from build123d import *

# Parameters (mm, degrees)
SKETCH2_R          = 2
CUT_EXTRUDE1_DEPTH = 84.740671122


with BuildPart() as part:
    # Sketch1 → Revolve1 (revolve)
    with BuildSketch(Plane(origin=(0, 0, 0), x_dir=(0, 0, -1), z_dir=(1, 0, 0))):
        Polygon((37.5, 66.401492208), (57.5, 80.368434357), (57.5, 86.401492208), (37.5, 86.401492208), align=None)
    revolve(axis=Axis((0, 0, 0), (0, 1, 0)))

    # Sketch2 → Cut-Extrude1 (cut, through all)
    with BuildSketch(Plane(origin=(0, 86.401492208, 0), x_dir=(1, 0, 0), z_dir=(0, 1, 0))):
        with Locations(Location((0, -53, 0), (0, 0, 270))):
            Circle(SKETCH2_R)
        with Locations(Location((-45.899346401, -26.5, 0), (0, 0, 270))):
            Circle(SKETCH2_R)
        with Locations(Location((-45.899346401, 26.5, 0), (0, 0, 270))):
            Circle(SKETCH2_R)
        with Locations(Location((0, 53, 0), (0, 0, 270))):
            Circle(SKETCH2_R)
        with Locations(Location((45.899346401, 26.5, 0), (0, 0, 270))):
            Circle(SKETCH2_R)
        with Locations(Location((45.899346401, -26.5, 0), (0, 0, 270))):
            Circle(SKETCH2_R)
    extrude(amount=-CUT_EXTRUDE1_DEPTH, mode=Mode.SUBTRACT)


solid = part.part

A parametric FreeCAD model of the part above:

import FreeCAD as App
import Part
import Sketcher
Q = App.Units.Quantity


def add_polygon(sketch, points):
    """Adds a closed chain of lines whose ends are joined by coincident constraints."""
    first, n = sketch.GeometryCount, len(points)
    for a, b in zip(points, points[1:] + points[:1]):
        sketch.addGeometry(Part.LineSegment(App.Vector(*a, 0), App.Vector(*b, 0)), False)
    for i in range(n):
        sketch.addConstraint(Sketcher.Constraint("Coincident", first + i, 2, first + (i + 1) % n, 1))

doc = App.newDocument("Part")
params = doc.addObject("Spreadsheet::Sheet", "Params")
for row, (alias, value) in enumerate([
    ("sketch1_width", "20 mm"),
    ("revolution_angle", "360 deg"),
    ("sketch2_diameter", "4 mm"),
], start=1):
    params.set(f"A{row}", alias)
    params.set(f"B{row}", "=" + value)
    params.setAlias(f"B{row}", alias)

body = doc.addObject("PartDesign::Body", "Body")

sketch1 = body.newObject("Sketcher::SketchObject", "Sketch")
sketch1.AttachmentSupport = (doc.getObject("YZ_Plane"), [""])
sketch1.MapMode = "FlatFace"
add_polygon(sketch1, [(66, -38), (80, -58), (86, -58), (86, -38)])
sketch1.addConstraint([
    Sketcher.Constraint("Horizontal", 1),
    Sketcher.Constraint("Vertical", 2),
    Sketcher.Constraint("Horizontal", 3),
    Sketcher.Constraint("Equal", 3, 2),
    Sketcher.Constraint("DistanceX", 3, 2, 3, 1, Q("20 mm")),
    Sketcher.Constraint("DistanceY", 0, 2, -1, 1, Q("57.5 mm")),
    Sketcher.Constraint("Distance", 0, Q("24.394169 mm")),
    Sketcher.Constraint("DistanceX", -1, 1, 0, 2, Q("80.368434 mm")),
])
sketch1.setExpression("Constraints[8]", "Params.sketch1_width")
revolution = body.newObject("PartDesign::Revolution", "Revolution")
revolution.Profile = sketch1
revolution.ReferenceAxis = (sketch1, ["H_Axis"])
revolution.setExpression("Angle", "Params.revolution_angle")

sketch2 = body.newObject("Sketcher::SketchObject", "Sketch001")
sketch2.AttachmentSupport = (doc.getObject("XZ_Plane"), [""])
sketch2.MapMode = "FlatFace"
sketch2.AttachmentOffset = App.Placement(App.Vector(0, 0, -86.401492), App.Rotation())
sketch2.addGeometry([
    Part.Circle(App.Vector(0, 53, 0), App.Vector(0, 0, 1), 2),
    Part.Circle(App.Vector(-45.9, 26.5, 0), App.Vector(0, 0, 1), 2),
    Part.Circle(App.Vector(-45.9, -26.5, 0), App.Vector(0, 0, 1), 2),
    Part.Circle(App.Vector(0, -53, 0), App.Vector(0, 0, 1), 2),
    Part.Circle(App.Vector(45.9, -26.5, 0), App.Vector(0, 0, 1), 2),
    Part.Circle(App.Vector(45.9, 26.5, 0), App.Vector(0, 0, 1), 2),
], False)
sketch2.addConstraint([
    Sketcher.Constraint("Equal", 0, 1),
    Sketcher.Constraint("Equal", 1, 2),
    Sketcher.Constraint("Equal", 2, 3),
    Sketcher.Constraint("Equal", 3, 4),
    Sketcher.Constraint("Equal", 4, 5),
    Sketcher.Constraint("Symmetric", 0, 3, 3, 3, -1, 1),
    Sketcher.Constraint("Symmetric", 1, 3, 4, 3, -1, 1),
    Sketcher.Constraint("Symmetric", 2, 3, 5, 3, -1, 1),
    Sketcher.Constraint("Symmetric", 2, 3, 4, 3, -2),
    Sketcher.Constraint("PointOnObject", 0, 3, -2),
    Sketcher.Constraint("Diameter", 0, Q("4 mm")),
    Sketcher.Constraint("DistanceY", -1, 1, 0, 3, Q("53 mm")),
    Sketcher.Constraint("DistanceY", 2, 3, 1, 3, Q("53 mm")),
    Sketcher.Constraint("DistanceX", 1, 3, -1, 1, Q("45.899346 mm")),
])
sketch2.setExpression("Constraints[10]", "Params.sketch2_diameter")
pocket1 = body.newObject("PartDesign::Pocket", "Pocket")
pocket1.Profile = sketch2
pocket1.Type = "ThroughAll"
pocket1.Reversed = True

doc.recompute()
